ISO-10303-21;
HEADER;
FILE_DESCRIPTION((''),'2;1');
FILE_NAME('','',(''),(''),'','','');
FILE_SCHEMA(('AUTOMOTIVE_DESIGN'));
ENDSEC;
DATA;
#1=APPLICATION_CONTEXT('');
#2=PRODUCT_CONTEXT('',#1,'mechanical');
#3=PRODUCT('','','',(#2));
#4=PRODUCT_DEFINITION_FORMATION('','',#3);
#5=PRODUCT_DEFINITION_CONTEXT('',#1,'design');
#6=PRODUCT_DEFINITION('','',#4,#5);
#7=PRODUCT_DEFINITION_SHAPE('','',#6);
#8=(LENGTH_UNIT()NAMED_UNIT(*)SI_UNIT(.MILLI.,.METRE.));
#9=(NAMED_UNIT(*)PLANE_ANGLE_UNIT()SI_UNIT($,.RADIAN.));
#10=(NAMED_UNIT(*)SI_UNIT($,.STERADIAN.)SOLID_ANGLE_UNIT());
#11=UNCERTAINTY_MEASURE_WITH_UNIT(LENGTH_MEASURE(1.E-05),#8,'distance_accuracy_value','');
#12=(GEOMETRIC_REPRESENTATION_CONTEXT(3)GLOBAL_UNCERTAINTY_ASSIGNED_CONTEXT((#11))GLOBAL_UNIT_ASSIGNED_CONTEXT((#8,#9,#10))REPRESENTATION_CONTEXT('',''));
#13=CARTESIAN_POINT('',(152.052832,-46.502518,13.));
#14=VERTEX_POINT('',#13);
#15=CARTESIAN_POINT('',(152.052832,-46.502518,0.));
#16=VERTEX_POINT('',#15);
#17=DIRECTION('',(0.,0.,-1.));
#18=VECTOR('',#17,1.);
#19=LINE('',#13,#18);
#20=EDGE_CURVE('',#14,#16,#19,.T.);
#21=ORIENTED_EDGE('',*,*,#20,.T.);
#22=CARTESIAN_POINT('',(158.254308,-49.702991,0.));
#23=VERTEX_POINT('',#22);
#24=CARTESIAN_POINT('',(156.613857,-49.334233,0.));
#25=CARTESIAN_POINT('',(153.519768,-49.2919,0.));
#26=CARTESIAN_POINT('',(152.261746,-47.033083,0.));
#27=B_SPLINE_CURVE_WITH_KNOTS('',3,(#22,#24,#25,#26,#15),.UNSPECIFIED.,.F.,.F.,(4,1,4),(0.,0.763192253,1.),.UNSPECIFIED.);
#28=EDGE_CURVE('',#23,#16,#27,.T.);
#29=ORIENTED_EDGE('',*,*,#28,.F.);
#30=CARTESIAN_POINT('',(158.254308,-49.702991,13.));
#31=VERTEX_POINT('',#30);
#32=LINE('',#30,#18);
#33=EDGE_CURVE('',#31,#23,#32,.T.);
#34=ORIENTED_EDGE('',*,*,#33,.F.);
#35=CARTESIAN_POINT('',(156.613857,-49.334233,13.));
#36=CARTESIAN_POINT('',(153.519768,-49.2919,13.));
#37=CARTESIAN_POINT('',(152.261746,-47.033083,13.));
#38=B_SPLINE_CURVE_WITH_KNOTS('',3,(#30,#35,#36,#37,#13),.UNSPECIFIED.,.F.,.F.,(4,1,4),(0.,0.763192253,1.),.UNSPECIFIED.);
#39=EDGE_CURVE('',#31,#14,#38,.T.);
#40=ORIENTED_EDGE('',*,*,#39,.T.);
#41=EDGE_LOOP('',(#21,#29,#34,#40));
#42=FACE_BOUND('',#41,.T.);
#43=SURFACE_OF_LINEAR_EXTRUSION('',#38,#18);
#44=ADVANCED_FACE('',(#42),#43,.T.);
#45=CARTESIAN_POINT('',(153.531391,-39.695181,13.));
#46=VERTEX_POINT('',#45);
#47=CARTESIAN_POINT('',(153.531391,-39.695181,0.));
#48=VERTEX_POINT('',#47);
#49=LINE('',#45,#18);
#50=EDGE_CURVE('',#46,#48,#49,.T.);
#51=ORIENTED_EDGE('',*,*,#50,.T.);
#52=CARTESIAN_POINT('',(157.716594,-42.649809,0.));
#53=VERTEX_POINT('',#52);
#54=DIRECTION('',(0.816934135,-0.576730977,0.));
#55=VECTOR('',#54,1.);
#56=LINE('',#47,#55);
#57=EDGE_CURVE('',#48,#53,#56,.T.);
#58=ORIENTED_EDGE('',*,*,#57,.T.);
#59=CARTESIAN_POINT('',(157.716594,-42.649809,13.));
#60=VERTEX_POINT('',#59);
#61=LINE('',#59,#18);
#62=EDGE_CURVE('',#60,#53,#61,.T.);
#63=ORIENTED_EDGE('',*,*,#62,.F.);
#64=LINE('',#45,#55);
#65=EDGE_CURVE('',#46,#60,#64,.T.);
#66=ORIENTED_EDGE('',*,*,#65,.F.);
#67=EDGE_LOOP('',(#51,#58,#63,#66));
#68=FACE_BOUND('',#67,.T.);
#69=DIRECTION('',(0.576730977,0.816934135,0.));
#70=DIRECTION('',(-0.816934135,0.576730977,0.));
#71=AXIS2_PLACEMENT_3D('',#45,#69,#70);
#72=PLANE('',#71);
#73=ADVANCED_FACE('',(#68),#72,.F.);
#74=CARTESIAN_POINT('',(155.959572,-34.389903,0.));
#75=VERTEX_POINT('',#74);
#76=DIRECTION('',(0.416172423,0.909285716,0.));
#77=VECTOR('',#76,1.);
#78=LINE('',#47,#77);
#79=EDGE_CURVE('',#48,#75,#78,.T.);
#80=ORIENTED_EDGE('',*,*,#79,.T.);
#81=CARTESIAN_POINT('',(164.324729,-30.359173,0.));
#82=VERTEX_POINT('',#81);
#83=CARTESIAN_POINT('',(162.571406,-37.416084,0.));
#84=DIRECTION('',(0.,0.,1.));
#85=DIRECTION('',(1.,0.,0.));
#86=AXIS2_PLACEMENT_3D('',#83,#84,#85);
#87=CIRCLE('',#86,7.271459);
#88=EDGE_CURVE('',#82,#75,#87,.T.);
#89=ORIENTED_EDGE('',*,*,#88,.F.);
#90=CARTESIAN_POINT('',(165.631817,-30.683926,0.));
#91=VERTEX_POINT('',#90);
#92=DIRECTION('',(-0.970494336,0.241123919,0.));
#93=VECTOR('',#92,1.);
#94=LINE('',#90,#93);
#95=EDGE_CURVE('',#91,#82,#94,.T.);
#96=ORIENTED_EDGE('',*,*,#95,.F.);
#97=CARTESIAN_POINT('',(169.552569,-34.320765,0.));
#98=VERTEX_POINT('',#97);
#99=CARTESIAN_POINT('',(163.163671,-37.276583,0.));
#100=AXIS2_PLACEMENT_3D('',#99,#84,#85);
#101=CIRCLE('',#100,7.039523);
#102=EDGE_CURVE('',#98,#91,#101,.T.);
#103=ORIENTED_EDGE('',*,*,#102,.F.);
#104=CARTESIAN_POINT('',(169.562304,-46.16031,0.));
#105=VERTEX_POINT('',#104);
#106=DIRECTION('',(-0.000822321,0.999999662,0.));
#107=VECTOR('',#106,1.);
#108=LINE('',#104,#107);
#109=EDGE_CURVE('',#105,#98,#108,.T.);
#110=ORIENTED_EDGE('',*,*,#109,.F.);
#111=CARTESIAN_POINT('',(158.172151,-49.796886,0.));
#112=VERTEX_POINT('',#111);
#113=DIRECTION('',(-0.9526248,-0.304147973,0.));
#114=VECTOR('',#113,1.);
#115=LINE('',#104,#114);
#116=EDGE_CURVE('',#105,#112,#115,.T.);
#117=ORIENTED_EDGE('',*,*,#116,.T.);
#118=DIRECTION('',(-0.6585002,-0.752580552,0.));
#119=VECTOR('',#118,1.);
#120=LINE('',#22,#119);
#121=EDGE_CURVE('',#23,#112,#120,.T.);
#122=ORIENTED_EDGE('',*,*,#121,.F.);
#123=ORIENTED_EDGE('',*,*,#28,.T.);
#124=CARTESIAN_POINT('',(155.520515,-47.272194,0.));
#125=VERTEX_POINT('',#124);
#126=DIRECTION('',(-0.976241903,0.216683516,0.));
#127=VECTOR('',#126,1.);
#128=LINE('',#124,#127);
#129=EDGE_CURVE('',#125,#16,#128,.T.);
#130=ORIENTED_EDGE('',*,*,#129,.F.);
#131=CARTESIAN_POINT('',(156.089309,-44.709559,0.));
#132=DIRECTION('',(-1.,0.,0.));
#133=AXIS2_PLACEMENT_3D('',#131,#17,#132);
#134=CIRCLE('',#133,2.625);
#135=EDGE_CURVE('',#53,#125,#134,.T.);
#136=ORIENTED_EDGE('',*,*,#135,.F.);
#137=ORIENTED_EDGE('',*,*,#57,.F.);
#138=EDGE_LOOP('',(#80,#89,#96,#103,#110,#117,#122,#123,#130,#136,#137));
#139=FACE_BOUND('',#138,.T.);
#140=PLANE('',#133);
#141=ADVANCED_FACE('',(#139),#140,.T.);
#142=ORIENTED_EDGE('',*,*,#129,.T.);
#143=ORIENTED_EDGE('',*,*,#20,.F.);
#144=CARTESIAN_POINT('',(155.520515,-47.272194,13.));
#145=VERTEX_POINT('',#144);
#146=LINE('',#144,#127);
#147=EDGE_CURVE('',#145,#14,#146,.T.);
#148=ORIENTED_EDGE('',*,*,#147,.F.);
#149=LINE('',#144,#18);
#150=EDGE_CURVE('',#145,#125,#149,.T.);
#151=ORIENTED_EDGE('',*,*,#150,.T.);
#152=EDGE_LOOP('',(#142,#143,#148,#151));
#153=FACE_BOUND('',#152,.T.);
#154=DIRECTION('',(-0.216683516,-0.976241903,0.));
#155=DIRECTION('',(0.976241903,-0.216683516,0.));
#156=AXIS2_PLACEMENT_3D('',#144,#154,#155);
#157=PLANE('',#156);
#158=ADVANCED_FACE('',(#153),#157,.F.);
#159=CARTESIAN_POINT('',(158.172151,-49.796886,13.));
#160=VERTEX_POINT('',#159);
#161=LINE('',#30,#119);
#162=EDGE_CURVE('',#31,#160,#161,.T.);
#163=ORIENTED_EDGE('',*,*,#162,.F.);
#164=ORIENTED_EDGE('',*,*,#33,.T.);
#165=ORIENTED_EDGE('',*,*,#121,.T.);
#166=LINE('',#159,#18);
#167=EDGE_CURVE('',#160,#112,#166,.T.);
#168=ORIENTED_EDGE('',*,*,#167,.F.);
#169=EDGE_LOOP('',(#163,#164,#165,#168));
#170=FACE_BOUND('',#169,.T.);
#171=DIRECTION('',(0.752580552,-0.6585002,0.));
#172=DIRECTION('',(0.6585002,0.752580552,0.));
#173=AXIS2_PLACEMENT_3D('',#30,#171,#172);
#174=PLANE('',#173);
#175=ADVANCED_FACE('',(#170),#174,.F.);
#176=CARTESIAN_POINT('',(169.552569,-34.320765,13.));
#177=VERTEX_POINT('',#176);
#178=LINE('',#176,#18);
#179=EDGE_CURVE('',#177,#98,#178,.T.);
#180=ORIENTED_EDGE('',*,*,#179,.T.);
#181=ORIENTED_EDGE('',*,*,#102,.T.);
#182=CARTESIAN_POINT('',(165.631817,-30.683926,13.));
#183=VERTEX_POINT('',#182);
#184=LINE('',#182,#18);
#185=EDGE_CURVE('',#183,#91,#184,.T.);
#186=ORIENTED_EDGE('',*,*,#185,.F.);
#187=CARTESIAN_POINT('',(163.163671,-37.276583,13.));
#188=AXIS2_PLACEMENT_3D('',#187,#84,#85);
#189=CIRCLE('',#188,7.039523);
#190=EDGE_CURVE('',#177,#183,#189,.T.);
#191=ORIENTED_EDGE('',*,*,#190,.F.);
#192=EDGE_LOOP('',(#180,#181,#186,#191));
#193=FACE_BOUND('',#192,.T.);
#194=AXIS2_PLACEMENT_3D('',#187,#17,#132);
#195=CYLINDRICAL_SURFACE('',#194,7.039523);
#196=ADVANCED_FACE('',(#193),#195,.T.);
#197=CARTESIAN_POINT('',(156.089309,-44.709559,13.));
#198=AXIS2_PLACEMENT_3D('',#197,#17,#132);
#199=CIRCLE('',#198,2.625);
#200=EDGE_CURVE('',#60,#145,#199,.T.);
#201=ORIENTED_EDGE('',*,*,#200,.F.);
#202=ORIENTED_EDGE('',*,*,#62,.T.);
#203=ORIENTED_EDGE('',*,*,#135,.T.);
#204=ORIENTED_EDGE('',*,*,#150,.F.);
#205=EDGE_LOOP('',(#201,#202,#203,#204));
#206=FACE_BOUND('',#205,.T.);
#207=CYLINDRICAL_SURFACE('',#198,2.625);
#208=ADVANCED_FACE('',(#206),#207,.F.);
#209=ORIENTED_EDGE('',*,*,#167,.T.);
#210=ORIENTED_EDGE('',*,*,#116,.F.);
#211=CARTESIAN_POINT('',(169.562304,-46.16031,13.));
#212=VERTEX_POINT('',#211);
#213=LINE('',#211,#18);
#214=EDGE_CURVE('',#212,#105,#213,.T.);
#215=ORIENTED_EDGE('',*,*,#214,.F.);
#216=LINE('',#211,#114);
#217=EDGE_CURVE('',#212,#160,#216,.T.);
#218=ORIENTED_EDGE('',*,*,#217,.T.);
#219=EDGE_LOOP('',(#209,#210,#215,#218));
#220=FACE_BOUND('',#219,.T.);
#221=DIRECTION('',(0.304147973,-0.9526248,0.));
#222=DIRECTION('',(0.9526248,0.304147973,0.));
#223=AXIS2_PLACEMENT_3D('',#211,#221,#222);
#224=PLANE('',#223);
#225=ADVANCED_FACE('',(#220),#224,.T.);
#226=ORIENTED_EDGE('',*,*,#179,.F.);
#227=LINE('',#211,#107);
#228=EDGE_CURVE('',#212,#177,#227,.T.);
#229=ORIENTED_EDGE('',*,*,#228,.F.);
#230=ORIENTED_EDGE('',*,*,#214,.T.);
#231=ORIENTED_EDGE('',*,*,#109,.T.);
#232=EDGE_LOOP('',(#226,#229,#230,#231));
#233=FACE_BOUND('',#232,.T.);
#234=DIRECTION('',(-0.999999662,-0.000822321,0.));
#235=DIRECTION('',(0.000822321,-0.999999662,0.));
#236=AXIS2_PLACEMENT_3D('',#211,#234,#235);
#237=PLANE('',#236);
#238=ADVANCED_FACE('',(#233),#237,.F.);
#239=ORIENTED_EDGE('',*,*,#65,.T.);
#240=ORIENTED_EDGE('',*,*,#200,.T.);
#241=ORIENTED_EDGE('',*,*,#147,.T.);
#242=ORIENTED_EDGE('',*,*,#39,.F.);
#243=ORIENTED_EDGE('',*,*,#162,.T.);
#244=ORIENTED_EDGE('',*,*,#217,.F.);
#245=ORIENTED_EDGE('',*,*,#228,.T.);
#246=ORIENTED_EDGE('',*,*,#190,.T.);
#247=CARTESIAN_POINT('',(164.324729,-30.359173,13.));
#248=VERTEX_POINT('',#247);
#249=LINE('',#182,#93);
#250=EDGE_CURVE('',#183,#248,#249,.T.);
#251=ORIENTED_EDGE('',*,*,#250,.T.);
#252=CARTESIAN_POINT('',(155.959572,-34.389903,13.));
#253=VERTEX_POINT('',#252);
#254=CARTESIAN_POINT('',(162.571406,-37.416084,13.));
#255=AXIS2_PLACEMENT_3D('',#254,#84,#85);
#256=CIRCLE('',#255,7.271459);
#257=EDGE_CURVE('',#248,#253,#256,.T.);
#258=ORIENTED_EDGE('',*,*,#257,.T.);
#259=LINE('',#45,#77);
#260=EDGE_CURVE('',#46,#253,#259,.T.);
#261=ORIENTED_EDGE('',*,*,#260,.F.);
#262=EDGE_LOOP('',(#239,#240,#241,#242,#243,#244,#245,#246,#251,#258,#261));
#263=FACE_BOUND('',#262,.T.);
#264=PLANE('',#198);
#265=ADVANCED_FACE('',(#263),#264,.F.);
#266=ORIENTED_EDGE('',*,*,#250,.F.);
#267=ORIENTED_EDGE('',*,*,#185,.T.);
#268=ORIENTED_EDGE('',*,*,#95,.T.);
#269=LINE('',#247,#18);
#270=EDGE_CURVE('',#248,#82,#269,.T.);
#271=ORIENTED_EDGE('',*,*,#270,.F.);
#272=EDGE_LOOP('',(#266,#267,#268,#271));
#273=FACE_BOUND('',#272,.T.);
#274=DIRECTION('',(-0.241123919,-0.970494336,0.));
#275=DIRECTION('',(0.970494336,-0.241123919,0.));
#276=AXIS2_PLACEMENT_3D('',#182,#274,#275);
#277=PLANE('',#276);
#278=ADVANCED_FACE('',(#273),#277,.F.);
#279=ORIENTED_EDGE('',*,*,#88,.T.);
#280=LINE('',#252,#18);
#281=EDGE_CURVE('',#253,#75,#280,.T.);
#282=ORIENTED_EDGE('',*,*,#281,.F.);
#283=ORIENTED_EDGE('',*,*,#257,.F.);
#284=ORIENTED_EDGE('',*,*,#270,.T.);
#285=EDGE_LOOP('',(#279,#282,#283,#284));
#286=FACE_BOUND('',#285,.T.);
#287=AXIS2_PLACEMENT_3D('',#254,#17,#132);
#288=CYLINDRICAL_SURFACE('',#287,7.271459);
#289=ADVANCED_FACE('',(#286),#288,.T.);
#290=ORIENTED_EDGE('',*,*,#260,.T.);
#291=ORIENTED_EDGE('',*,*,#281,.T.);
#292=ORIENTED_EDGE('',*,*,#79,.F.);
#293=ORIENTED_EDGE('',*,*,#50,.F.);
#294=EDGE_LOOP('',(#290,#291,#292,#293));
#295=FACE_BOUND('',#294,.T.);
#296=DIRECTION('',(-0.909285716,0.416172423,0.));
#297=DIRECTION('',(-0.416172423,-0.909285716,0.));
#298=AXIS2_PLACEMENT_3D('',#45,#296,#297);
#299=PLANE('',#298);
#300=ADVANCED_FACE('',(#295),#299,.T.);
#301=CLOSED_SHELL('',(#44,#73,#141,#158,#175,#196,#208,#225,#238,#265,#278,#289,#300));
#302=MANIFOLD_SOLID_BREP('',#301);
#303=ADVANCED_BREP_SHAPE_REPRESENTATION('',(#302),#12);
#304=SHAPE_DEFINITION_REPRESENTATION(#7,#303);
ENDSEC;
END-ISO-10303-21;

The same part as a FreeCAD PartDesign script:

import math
import FreeCAD as App
import Part
import Sketcher

V = App.Vector
Q = App.Units.Quantity

doc = App.newDocument("Part")
body = doc.addObject("PartDesign::Body", "Body")

sketch1 = body.newObject("Sketcher::SketchObject", "Sketch")
sketch1.AttachmentSupport = (doc.getObject("XY_Plane"), [""])
sketch1.MapMode = "FlatFace"
sketch1.addGeometry([
    Part.LineSegment(V(169.562304, -46.16031, 0), V(169.552569, -34.320765, 0)),
    Part.ArcOfCircle(Part.Circle(V(163.163671, -37.276583, 0), V(0, 0, 1), 7.039523), math.radians(24.827581), math.radians(69.475201)),
    Part.LineSegment(V(165.631817, -30.683926, 0), V(164.324729, -30.359173, 0)),
    Part.ArcOfCircle(Part.Circle(V(162.571406, -37.416084, 0), V(0, 0, 1), 7.271459), math.radians(76.047116), math.radians(155.406829)),
    Part.LineSegment(V(155.959572, -34.389903, 0), V(153.531391, -39.695181, 0)),
    Part.LineSegment(V(153.531391, -39.695181, 0), V(157.716594, -42.649809, 0)),
    Part.ArcOfCircle(Part.Circle(V(156.089309, -44.709559, 0), V(0, 0, 1), 2.625), math.radians(-102.514314), math.radians(51.689866)),
    Part.LineSegment(V(155.520515, -47.272194, 0), V(152.052832, -46.502518, 0)),
    Part.BSplineCurve([V(158.254308, -49.702991, 0), V(156.613857, -49.334233, 0), V(153.519768, -49.2919, 0), V(152.261746, -47.033083, 0), V(152.052832, -46.502518, 0)], [4, 1, 4], [0, 0.763192253, 1], False, 3, [1, 1, 1, 1, 1], False),
    Part.LineSegment(V(158.254308, -49.702991, 0), V(158.172151, -49.796886, 0)),
    Part.LineSegment(V(158.172151, -49.796886, 0), V(169.562304, -46.16031, 0)),
], False)
sketch1.addConstraint([
    Sketcher.Constraint("Block", 8),
    Sketcher.Constraint("Coincident", 0, 2, 1, 1),
    Sketcher.Constraint("Coincident", 1, 2, 2, 1),
    Sketcher.Constraint("Tangent", 2, 2, 3, 1),
    Sketcher.Constraint("Tangent", 3, 2, 4, 1),
    Sketcher.Constraint("Coincident", 4, 2, 5, 1),
    Sketcher.Constraint("Coincident", 5, 2, 6, 2),
    Sketcher.Constraint("Tangent", 6, 1, 7, 1),
    Sketcher.Constraint("Coincident", 7, 2, 8, 2),
    Sketcher.Constraint("Coincident", 8, 1, 9, 1),
    Sketcher.Constraint("Coincident", 9, 2, 10, 1),
    Sketcher.Constraint("Coincident", 10, 2, 0, 1),
    Sketcher.Constraint("Radius", 6, Q("2.625 mm")),
    Sketcher.Constraint("Radius", 3, Q("7.271459 mm")),
    Sketcher.Constraint("Radius", 1, Q("7.039523 mm")),
    Sketcher.Constraint("Distance", 10, Q("11.9566 mm")),
    Sketcher.Constraint("DistanceY", 3, 3, 1, 3, Q("0.139501 mm")),
    Sketcher.Constraint("DistanceX", 1, 3, 0, 2, Q("6.388898 mm")),
    Sketcher.Constraint("DistanceX", 3, 2, 1, 3, Q("7.204099 mm")),
    Sketcher.Constraint("DistanceY", 4, 2, 1, 3, Q("2.418598 mm")),
    Sketcher.Constraint("DistanceX", 3, 3, 10, 2, Q("6.990898 mm")),
    Sketcher.Constraint("DistanceY", 10, 2, 5, 2, Q("3.510501 mm")),
    Sketcher.Constraint("Distance", 0, Q("11.839549 mm")),
    Sketcher.Constraint("Distance", 5, Q("5.12306 mm")),
    Sketcher.Constraint("DistanceX", -1, 1, 1, 3, Q("163.163671 mm")),
    Sketcher.Constraint("DistanceX", -1, 1, 6, 3, Q("156.089309 mm")),
    Sketcher.Constraint("DistanceY", 6, 3, -1, 1, Q("44.709559 mm")),
    Sketcher.Constraint("DistanceX", -1, 1, 2, 2, Q("164.324729 mm")),
    Sketcher.Constraint("DistanceX", -1, 1, 4, 2, Q("153.531391 mm")),
    Sketcher.Constraint("DistanceX", -1, 1, 9, 2, Q("158.172151 mm")),
])
pad1 = body.newObject("PartDesign::Pad", "Pad")
pad1.Profile = sketch1
pad1.Length = 13

doc.recompute()
